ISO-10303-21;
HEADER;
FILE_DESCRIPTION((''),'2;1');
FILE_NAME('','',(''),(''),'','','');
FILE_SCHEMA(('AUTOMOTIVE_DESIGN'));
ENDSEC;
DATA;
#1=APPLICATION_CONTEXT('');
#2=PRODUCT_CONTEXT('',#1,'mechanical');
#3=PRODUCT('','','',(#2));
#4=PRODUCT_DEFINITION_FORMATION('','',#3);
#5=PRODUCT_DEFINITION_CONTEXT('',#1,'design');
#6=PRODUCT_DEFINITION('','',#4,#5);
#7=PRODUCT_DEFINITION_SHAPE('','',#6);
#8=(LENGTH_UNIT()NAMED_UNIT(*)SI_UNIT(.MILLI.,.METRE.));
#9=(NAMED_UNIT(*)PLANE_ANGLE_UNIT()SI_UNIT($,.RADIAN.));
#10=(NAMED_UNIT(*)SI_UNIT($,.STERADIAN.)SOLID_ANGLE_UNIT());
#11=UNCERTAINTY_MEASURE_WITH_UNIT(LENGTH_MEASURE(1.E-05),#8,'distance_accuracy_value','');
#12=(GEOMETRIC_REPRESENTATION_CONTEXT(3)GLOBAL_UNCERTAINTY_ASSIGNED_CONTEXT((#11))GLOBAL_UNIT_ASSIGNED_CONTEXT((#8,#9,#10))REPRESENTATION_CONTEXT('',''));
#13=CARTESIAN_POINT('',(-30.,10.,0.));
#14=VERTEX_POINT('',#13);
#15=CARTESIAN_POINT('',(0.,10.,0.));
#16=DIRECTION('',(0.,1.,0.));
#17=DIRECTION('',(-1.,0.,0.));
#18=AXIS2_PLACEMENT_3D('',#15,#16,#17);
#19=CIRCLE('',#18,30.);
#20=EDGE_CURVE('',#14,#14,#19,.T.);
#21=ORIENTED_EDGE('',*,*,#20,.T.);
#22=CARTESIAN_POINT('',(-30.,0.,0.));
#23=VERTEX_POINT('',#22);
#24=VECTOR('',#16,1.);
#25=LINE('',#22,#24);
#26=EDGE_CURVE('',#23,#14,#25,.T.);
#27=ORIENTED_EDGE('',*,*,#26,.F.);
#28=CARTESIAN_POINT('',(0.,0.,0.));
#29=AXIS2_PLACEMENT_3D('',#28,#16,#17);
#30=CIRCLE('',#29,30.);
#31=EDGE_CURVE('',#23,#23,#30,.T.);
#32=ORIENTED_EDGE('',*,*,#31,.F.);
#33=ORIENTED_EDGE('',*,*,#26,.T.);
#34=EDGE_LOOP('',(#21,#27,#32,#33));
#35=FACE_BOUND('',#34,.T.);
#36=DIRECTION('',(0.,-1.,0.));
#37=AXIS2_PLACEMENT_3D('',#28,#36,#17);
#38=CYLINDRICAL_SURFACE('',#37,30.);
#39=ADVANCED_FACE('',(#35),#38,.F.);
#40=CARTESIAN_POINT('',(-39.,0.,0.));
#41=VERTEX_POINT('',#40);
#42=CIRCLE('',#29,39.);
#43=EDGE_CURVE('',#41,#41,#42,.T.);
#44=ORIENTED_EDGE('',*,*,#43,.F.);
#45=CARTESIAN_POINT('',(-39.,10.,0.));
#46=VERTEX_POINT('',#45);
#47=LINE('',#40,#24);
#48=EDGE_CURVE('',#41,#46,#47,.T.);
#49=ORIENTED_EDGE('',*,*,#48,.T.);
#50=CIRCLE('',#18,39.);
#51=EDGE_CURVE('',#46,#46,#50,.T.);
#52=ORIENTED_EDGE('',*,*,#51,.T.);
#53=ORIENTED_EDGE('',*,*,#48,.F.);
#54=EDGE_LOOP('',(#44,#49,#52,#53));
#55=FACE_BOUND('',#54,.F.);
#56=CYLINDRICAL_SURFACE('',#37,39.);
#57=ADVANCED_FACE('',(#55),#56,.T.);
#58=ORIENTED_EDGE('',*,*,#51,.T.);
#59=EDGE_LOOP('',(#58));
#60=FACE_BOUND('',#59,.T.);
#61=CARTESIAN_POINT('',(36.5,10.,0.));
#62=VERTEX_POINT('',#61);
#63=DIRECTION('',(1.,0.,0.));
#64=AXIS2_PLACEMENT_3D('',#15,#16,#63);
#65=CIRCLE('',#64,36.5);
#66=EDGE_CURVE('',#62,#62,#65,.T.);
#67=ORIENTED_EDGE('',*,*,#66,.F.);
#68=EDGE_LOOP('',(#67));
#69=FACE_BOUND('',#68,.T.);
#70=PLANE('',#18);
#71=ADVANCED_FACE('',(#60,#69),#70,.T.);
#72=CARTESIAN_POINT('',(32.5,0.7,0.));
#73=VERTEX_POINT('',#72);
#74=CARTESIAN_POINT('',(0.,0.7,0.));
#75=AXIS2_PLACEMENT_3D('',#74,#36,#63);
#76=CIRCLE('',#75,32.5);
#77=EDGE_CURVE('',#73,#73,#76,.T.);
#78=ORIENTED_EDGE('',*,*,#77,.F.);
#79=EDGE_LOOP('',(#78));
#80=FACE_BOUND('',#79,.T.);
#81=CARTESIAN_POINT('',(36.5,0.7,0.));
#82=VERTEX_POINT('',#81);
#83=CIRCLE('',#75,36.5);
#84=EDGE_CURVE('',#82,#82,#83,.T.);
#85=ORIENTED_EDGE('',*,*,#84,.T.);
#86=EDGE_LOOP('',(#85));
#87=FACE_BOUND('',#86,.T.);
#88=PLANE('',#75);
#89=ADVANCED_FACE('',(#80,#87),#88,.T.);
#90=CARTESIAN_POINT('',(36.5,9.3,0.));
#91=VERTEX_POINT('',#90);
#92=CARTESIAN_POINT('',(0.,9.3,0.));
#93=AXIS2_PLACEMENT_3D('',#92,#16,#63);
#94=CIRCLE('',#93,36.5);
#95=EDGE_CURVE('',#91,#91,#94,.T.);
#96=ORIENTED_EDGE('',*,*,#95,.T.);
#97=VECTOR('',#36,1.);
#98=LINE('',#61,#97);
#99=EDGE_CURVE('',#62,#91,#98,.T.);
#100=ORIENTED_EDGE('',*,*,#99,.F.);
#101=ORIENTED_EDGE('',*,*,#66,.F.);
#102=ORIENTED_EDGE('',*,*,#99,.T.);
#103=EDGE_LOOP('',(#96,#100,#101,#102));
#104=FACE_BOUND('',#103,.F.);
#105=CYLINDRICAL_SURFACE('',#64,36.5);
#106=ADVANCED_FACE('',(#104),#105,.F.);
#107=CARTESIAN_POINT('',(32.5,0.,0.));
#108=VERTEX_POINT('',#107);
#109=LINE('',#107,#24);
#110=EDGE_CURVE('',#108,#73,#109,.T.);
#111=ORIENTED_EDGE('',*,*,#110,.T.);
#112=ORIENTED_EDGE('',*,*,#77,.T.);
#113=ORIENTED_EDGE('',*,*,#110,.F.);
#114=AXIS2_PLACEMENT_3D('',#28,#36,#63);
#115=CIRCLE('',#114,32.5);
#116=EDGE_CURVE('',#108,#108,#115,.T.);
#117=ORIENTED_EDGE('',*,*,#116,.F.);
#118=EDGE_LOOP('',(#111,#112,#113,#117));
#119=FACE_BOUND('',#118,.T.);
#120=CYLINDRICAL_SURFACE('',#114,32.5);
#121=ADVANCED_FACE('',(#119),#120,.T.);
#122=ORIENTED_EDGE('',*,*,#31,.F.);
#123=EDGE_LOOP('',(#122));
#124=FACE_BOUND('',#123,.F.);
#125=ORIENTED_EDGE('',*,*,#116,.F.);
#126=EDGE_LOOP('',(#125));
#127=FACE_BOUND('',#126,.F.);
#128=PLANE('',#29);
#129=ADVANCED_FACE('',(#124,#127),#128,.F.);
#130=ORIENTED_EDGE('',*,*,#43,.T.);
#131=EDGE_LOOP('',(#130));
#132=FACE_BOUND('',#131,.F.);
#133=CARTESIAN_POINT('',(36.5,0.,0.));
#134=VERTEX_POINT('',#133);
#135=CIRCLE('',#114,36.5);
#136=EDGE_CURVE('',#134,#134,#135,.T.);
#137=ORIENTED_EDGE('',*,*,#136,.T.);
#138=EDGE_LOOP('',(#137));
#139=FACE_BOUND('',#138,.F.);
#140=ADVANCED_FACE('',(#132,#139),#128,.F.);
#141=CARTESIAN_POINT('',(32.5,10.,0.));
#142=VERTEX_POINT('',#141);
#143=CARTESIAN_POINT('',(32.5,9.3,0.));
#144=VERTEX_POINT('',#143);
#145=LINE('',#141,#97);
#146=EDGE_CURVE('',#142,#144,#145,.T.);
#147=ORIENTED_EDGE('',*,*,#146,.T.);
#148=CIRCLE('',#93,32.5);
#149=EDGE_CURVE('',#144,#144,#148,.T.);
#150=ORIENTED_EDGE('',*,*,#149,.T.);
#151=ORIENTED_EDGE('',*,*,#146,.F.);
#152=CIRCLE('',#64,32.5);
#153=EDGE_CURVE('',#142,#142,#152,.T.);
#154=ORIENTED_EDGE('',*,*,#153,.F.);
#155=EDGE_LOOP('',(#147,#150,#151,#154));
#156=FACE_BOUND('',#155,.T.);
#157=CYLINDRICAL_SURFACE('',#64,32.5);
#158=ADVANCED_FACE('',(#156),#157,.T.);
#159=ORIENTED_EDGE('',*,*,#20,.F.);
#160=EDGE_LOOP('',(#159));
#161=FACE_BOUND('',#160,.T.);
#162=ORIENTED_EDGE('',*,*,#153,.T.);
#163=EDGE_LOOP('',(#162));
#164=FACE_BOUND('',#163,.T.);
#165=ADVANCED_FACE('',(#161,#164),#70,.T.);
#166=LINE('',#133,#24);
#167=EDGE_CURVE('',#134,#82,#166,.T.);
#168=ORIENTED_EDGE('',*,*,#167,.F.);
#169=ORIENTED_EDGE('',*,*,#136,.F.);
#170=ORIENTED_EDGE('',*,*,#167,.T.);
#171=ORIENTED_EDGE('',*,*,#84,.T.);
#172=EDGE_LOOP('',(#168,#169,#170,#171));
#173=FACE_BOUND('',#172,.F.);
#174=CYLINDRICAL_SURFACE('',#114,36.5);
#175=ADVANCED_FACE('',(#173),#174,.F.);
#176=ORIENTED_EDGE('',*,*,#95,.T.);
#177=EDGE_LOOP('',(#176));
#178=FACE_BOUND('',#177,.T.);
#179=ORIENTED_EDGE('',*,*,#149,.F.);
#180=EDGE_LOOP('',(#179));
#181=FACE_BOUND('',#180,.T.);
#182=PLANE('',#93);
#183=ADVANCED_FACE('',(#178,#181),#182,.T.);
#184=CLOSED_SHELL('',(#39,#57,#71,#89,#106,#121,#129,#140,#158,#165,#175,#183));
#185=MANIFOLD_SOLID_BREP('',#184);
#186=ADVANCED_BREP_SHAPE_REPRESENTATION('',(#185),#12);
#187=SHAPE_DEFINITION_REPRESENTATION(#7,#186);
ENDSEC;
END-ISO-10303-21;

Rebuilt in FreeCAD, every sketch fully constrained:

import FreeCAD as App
import Part
import Sketcher

V = App.Vector
Q = App.Units.Quantity

doc = App.newDocument("Part")
body = doc.addObject("PartDesign::Body", "Body")

# Sketch on XZ plane
sketch1 = body.newObject("Sketcher::SketchObject", "Sketch")
sketch1.AttachmentSupport = (doc.getObject("XZ_Plane"), [""])
sketch1.MapMode = "FlatFace"
sketch1.addGeometry([
    Part.Circle(V(0, 0, 0), V(0, 0, 1), 39),
    Part.Circle(V(0, 0, 0), V(0, 0, 1), 30),
], False)
sketch1.addConstraint([
    Sketcher.Constraint("Coincident", 0, 3, -1, 1),
    Sketcher.Constraint("Coincident", 1, 3, -1, 1),
    Sketcher.Constraint("Diameter", 0, Q("78 mm")),
    Sketcher.Constraint("Diameter", 1, Q("60 mm")),
])
pad1 = body.newObject("PartDesign::Pad", "Pad")
pad1.Profile = sketch1
pad1.Length = 10
pad1.Reversed = True

# Sketch on XZ plane
sketch2 = body.newObject("Sketcher::SketchObject", "Sketch001")
sketch2.AttachmentSupport = (doc.getObject("XZ_Plane"), [""])
sketch2.MapMode = "FlatFace"
sketch2.AttachmentOffset = App.Placement(V(0, 0, -10), App.Rotation())
sketch2.addGeometry([
    Part.Circle(V(0, 0, 0), V(0, 0, 1), 36),
    Part.Circle(V(0, 0, 0), V(0, 0, 1), 32),
], False)
sketch2.addConstraint([
    Sketcher.Constraint("Coincident", 0, 3, -1, 1),
    Sketcher.Constraint("Coincident", 1, 3, -1, 1),
    Sketcher.Constraint("Diameter", 0, Q("73 mm")),
    Sketcher.Constraint("Diameter", 1, Q("65 mm")),
])
pocket1 = body.newObject("PartDesign::Pocket", "Pocket")
pocket1.Profile = sketch2
pocket1.Length = 0.7
pocket1.Reversed = True

# Sketch on XZ plane
sketch3 = body.newObject("Sketcher::SketchObject", "Sketch002")
sketch3.AttachmentSupport = (doc.getObject("XZ_Plane"), [""])
sketch3.MapMode = "FlatFace"
sketch3.addGeometry([
    Part.Circle(V(0, 0, 0), V(0, 0, 1), 36),
    Part.Circle(V(0, 0, 0), V(0, 0, 1), 32),
], False)
sketch3.addConstraint([
    Sketcher.Constraint("Coincident", 0, 3, -1, 1),
    Sketcher.Constraint("Coincident", 1, 3, -1, 1),
    Sketcher.Constraint("Diameter", 0, Q("73 mm")),
    Sketcher.Constraint("Diameter", 1, Q("65 mm")),
])
pocket2 = body.newObject("PartDesign::Pocket", "Pocket001")
pocket2.Profile = sketch3
pocket2.Length = 0.7

doc.recompute()
